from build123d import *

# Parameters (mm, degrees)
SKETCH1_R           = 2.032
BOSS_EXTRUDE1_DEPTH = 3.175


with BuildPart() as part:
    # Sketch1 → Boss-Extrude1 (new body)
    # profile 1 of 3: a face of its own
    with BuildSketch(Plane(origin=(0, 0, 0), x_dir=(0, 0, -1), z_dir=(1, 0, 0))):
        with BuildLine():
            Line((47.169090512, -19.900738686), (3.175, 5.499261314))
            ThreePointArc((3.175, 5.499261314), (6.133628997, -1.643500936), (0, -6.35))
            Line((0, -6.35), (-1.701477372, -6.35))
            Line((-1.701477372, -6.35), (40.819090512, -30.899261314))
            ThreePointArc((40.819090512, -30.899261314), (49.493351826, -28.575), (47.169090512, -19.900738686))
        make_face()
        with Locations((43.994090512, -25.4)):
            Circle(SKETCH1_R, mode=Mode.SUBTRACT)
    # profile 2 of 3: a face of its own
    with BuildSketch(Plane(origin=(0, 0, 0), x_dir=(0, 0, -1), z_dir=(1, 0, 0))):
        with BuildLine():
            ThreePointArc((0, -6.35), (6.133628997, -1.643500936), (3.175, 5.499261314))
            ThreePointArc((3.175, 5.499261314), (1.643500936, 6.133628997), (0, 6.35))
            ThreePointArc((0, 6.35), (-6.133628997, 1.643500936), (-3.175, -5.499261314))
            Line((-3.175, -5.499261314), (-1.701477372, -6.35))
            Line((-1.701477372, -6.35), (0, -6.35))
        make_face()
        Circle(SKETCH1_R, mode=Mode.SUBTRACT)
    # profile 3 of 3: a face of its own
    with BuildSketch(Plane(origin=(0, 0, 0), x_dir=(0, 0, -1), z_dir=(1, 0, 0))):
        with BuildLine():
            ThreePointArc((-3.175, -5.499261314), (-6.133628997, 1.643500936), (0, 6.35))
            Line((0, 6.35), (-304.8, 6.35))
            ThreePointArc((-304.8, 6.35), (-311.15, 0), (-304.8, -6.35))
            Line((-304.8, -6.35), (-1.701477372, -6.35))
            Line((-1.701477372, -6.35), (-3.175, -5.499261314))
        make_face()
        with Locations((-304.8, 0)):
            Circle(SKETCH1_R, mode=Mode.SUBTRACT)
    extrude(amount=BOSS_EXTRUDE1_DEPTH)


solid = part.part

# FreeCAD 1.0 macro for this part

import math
import FreeCAD as App
import Part
import Sketcher
Q = App.Units.Quantity

doc = App.newDocument("Part")
params = doc.addObject("Spreadsheet::Sheet", "Params")
for row, (alias, value) in enumerate([
    ("sketch1_diameter", "0.16 in"),
    ("sketch1_height", "12 in"),
    ("sketch1_radius", "0.25 in"),
    ("sketch1_length", "2 in"),
    ("pad1_length", "0.125 in"),
], start=1):
    params.set(f"A{row}", alias)
    params.set(f"B{row}", "=" + value)
    params.setAlias(f"B{row}", alias)

body = doc.addObject("PartDesign::Body", "Body")

# Sketch on YZ plane
sketch1 = doc.addObject("Sketcher::SketchObject", "Sketch")
body.addObject(sketch1)
sketch1.AttachmentSupport = (doc.YZ_Plane, [""])
sketch1.MapMode = "FlatFace"
sketch1.addGeometry([
    Part.LineSegment(App.Vector(-19.9, -47.2, 0), App.Vector(5.5, -3.2, 0)),  # 0
    Part.ArcOfCircle(Part.Circle(App.Vector(0, 0, 0), App.Vector(0, 0, 1), 6.4), math.radians(-30), math.radians(0)),  # 1
    Part.LineSegment(App.Vector(6.3, 0, 0), App.Vector(6.3, 304.8, 0)),  # 2
    Part.ArcOfCircle(Part.Circle(App.Vector(0, 304.8, 0), App.Vector(0, 0, 1), 6.3), math.radians(0), math.radians(180)),  # 3
    Part.LineSegment(App.Vector(-6.3, 304.8, 0), App.Vector(-6.3, 1.7, 0)),  # 4
    Part.LineSegment(App.Vector(-6.3, 1.7, 0), App.Vector(-30.9, -40.8, 0)),  # 5
    Part.ArcOfCircle(Part.Circle(App.Vector(-25.4, -44, 0), App.Vector(0, 0, 1), 6.3), math.radians(150), math.radians(330)),  # 6
    Part.Circle(App.Vector(-25.4, -44, 0), App.Vector(0, 0, 1), 2),  # 7
    Part.Circle(App.Vector(0, 0, 0), App.Vector(0, 0, 1), 2),  # 8
    Part.Circle(App.Vector(0, 304.8, 0), App.Vector(0, 0, 1), 2),  # 9
], False)
sketch1.addConstraint([
    Sketcher.Constraint("Tangent", 0, 2, 1, 1),
    Sketcher.Constraint("Tangent", 1, 2, 2, 1),
    Sketcher.Constraint("Tangent", 2, 2, 3, 1),
    Sketcher.Constraint("Tangent", 3, 2, 4, 1),
    Sketcher.Constraint("Coincident", 4, 2, 5, 1),
    Sketcher.Constraint("Tangent", 5, 2, 6, 1),
    Sketcher.Constraint("Tangent", 6, 2, 0, 1),
    Sketcher.Constraint("Vertical", 2),
    Sketcher.Constraint("Vertical", 4),
    Sketcher.Constraint("Coincident", 1, 3, -1, 1),
    Sketcher.Constraint("Coincident", 8, 3, -1, 1),
    Sketcher.Constraint("Coincident", 7, 3, 6, 3),
    Sketcher.Constraint("Coincident", 9, 3, 3, 3),
    Sketcher.Constraint("Equal", 1, 3),
    Sketcher.Constraint("Equal", 3, 6),
    Sketcher.Constraint("Equal", 7, 8),
    Sketcher.Constraint("Equal", 8, 9),
    Sketcher.Constraint("Parallel", 0, 5),
    Sketcher.Constraint("Diameter", 7, Q("0.16 in")),
    Sketcher.Constraint("DistanceY", 2, 1, 2, 2, Q("12 in")),
    Sketcher.Constraint("Radius", 1, Q("0.25 in")),
    Sketcher.Constraint("Distance", 0, Q("2 in")),
    Sketcher.Constraint("DistanceX", 6, 3, -1, 1, Q("1 in")),
])
sketch1.setExpression("Constraints[18]", "Params.sketch1_diameter")
sketch1.setExpression("Constraints[19]", "Params.sketch1_height")
sketch1.setExpression("Constraints[20]", "Params.sketch1_radius")
sketch1.setExpression("Constraints[21]", "Params.sketch1_length")
pad1 = doc.addObject("PartDesign::Pad", "Pad")
body.addObject(pad1)
pad1.Profile = sketch1
pad1.setExpression("Length", "Params.pad1_length")

doc.recompute()
